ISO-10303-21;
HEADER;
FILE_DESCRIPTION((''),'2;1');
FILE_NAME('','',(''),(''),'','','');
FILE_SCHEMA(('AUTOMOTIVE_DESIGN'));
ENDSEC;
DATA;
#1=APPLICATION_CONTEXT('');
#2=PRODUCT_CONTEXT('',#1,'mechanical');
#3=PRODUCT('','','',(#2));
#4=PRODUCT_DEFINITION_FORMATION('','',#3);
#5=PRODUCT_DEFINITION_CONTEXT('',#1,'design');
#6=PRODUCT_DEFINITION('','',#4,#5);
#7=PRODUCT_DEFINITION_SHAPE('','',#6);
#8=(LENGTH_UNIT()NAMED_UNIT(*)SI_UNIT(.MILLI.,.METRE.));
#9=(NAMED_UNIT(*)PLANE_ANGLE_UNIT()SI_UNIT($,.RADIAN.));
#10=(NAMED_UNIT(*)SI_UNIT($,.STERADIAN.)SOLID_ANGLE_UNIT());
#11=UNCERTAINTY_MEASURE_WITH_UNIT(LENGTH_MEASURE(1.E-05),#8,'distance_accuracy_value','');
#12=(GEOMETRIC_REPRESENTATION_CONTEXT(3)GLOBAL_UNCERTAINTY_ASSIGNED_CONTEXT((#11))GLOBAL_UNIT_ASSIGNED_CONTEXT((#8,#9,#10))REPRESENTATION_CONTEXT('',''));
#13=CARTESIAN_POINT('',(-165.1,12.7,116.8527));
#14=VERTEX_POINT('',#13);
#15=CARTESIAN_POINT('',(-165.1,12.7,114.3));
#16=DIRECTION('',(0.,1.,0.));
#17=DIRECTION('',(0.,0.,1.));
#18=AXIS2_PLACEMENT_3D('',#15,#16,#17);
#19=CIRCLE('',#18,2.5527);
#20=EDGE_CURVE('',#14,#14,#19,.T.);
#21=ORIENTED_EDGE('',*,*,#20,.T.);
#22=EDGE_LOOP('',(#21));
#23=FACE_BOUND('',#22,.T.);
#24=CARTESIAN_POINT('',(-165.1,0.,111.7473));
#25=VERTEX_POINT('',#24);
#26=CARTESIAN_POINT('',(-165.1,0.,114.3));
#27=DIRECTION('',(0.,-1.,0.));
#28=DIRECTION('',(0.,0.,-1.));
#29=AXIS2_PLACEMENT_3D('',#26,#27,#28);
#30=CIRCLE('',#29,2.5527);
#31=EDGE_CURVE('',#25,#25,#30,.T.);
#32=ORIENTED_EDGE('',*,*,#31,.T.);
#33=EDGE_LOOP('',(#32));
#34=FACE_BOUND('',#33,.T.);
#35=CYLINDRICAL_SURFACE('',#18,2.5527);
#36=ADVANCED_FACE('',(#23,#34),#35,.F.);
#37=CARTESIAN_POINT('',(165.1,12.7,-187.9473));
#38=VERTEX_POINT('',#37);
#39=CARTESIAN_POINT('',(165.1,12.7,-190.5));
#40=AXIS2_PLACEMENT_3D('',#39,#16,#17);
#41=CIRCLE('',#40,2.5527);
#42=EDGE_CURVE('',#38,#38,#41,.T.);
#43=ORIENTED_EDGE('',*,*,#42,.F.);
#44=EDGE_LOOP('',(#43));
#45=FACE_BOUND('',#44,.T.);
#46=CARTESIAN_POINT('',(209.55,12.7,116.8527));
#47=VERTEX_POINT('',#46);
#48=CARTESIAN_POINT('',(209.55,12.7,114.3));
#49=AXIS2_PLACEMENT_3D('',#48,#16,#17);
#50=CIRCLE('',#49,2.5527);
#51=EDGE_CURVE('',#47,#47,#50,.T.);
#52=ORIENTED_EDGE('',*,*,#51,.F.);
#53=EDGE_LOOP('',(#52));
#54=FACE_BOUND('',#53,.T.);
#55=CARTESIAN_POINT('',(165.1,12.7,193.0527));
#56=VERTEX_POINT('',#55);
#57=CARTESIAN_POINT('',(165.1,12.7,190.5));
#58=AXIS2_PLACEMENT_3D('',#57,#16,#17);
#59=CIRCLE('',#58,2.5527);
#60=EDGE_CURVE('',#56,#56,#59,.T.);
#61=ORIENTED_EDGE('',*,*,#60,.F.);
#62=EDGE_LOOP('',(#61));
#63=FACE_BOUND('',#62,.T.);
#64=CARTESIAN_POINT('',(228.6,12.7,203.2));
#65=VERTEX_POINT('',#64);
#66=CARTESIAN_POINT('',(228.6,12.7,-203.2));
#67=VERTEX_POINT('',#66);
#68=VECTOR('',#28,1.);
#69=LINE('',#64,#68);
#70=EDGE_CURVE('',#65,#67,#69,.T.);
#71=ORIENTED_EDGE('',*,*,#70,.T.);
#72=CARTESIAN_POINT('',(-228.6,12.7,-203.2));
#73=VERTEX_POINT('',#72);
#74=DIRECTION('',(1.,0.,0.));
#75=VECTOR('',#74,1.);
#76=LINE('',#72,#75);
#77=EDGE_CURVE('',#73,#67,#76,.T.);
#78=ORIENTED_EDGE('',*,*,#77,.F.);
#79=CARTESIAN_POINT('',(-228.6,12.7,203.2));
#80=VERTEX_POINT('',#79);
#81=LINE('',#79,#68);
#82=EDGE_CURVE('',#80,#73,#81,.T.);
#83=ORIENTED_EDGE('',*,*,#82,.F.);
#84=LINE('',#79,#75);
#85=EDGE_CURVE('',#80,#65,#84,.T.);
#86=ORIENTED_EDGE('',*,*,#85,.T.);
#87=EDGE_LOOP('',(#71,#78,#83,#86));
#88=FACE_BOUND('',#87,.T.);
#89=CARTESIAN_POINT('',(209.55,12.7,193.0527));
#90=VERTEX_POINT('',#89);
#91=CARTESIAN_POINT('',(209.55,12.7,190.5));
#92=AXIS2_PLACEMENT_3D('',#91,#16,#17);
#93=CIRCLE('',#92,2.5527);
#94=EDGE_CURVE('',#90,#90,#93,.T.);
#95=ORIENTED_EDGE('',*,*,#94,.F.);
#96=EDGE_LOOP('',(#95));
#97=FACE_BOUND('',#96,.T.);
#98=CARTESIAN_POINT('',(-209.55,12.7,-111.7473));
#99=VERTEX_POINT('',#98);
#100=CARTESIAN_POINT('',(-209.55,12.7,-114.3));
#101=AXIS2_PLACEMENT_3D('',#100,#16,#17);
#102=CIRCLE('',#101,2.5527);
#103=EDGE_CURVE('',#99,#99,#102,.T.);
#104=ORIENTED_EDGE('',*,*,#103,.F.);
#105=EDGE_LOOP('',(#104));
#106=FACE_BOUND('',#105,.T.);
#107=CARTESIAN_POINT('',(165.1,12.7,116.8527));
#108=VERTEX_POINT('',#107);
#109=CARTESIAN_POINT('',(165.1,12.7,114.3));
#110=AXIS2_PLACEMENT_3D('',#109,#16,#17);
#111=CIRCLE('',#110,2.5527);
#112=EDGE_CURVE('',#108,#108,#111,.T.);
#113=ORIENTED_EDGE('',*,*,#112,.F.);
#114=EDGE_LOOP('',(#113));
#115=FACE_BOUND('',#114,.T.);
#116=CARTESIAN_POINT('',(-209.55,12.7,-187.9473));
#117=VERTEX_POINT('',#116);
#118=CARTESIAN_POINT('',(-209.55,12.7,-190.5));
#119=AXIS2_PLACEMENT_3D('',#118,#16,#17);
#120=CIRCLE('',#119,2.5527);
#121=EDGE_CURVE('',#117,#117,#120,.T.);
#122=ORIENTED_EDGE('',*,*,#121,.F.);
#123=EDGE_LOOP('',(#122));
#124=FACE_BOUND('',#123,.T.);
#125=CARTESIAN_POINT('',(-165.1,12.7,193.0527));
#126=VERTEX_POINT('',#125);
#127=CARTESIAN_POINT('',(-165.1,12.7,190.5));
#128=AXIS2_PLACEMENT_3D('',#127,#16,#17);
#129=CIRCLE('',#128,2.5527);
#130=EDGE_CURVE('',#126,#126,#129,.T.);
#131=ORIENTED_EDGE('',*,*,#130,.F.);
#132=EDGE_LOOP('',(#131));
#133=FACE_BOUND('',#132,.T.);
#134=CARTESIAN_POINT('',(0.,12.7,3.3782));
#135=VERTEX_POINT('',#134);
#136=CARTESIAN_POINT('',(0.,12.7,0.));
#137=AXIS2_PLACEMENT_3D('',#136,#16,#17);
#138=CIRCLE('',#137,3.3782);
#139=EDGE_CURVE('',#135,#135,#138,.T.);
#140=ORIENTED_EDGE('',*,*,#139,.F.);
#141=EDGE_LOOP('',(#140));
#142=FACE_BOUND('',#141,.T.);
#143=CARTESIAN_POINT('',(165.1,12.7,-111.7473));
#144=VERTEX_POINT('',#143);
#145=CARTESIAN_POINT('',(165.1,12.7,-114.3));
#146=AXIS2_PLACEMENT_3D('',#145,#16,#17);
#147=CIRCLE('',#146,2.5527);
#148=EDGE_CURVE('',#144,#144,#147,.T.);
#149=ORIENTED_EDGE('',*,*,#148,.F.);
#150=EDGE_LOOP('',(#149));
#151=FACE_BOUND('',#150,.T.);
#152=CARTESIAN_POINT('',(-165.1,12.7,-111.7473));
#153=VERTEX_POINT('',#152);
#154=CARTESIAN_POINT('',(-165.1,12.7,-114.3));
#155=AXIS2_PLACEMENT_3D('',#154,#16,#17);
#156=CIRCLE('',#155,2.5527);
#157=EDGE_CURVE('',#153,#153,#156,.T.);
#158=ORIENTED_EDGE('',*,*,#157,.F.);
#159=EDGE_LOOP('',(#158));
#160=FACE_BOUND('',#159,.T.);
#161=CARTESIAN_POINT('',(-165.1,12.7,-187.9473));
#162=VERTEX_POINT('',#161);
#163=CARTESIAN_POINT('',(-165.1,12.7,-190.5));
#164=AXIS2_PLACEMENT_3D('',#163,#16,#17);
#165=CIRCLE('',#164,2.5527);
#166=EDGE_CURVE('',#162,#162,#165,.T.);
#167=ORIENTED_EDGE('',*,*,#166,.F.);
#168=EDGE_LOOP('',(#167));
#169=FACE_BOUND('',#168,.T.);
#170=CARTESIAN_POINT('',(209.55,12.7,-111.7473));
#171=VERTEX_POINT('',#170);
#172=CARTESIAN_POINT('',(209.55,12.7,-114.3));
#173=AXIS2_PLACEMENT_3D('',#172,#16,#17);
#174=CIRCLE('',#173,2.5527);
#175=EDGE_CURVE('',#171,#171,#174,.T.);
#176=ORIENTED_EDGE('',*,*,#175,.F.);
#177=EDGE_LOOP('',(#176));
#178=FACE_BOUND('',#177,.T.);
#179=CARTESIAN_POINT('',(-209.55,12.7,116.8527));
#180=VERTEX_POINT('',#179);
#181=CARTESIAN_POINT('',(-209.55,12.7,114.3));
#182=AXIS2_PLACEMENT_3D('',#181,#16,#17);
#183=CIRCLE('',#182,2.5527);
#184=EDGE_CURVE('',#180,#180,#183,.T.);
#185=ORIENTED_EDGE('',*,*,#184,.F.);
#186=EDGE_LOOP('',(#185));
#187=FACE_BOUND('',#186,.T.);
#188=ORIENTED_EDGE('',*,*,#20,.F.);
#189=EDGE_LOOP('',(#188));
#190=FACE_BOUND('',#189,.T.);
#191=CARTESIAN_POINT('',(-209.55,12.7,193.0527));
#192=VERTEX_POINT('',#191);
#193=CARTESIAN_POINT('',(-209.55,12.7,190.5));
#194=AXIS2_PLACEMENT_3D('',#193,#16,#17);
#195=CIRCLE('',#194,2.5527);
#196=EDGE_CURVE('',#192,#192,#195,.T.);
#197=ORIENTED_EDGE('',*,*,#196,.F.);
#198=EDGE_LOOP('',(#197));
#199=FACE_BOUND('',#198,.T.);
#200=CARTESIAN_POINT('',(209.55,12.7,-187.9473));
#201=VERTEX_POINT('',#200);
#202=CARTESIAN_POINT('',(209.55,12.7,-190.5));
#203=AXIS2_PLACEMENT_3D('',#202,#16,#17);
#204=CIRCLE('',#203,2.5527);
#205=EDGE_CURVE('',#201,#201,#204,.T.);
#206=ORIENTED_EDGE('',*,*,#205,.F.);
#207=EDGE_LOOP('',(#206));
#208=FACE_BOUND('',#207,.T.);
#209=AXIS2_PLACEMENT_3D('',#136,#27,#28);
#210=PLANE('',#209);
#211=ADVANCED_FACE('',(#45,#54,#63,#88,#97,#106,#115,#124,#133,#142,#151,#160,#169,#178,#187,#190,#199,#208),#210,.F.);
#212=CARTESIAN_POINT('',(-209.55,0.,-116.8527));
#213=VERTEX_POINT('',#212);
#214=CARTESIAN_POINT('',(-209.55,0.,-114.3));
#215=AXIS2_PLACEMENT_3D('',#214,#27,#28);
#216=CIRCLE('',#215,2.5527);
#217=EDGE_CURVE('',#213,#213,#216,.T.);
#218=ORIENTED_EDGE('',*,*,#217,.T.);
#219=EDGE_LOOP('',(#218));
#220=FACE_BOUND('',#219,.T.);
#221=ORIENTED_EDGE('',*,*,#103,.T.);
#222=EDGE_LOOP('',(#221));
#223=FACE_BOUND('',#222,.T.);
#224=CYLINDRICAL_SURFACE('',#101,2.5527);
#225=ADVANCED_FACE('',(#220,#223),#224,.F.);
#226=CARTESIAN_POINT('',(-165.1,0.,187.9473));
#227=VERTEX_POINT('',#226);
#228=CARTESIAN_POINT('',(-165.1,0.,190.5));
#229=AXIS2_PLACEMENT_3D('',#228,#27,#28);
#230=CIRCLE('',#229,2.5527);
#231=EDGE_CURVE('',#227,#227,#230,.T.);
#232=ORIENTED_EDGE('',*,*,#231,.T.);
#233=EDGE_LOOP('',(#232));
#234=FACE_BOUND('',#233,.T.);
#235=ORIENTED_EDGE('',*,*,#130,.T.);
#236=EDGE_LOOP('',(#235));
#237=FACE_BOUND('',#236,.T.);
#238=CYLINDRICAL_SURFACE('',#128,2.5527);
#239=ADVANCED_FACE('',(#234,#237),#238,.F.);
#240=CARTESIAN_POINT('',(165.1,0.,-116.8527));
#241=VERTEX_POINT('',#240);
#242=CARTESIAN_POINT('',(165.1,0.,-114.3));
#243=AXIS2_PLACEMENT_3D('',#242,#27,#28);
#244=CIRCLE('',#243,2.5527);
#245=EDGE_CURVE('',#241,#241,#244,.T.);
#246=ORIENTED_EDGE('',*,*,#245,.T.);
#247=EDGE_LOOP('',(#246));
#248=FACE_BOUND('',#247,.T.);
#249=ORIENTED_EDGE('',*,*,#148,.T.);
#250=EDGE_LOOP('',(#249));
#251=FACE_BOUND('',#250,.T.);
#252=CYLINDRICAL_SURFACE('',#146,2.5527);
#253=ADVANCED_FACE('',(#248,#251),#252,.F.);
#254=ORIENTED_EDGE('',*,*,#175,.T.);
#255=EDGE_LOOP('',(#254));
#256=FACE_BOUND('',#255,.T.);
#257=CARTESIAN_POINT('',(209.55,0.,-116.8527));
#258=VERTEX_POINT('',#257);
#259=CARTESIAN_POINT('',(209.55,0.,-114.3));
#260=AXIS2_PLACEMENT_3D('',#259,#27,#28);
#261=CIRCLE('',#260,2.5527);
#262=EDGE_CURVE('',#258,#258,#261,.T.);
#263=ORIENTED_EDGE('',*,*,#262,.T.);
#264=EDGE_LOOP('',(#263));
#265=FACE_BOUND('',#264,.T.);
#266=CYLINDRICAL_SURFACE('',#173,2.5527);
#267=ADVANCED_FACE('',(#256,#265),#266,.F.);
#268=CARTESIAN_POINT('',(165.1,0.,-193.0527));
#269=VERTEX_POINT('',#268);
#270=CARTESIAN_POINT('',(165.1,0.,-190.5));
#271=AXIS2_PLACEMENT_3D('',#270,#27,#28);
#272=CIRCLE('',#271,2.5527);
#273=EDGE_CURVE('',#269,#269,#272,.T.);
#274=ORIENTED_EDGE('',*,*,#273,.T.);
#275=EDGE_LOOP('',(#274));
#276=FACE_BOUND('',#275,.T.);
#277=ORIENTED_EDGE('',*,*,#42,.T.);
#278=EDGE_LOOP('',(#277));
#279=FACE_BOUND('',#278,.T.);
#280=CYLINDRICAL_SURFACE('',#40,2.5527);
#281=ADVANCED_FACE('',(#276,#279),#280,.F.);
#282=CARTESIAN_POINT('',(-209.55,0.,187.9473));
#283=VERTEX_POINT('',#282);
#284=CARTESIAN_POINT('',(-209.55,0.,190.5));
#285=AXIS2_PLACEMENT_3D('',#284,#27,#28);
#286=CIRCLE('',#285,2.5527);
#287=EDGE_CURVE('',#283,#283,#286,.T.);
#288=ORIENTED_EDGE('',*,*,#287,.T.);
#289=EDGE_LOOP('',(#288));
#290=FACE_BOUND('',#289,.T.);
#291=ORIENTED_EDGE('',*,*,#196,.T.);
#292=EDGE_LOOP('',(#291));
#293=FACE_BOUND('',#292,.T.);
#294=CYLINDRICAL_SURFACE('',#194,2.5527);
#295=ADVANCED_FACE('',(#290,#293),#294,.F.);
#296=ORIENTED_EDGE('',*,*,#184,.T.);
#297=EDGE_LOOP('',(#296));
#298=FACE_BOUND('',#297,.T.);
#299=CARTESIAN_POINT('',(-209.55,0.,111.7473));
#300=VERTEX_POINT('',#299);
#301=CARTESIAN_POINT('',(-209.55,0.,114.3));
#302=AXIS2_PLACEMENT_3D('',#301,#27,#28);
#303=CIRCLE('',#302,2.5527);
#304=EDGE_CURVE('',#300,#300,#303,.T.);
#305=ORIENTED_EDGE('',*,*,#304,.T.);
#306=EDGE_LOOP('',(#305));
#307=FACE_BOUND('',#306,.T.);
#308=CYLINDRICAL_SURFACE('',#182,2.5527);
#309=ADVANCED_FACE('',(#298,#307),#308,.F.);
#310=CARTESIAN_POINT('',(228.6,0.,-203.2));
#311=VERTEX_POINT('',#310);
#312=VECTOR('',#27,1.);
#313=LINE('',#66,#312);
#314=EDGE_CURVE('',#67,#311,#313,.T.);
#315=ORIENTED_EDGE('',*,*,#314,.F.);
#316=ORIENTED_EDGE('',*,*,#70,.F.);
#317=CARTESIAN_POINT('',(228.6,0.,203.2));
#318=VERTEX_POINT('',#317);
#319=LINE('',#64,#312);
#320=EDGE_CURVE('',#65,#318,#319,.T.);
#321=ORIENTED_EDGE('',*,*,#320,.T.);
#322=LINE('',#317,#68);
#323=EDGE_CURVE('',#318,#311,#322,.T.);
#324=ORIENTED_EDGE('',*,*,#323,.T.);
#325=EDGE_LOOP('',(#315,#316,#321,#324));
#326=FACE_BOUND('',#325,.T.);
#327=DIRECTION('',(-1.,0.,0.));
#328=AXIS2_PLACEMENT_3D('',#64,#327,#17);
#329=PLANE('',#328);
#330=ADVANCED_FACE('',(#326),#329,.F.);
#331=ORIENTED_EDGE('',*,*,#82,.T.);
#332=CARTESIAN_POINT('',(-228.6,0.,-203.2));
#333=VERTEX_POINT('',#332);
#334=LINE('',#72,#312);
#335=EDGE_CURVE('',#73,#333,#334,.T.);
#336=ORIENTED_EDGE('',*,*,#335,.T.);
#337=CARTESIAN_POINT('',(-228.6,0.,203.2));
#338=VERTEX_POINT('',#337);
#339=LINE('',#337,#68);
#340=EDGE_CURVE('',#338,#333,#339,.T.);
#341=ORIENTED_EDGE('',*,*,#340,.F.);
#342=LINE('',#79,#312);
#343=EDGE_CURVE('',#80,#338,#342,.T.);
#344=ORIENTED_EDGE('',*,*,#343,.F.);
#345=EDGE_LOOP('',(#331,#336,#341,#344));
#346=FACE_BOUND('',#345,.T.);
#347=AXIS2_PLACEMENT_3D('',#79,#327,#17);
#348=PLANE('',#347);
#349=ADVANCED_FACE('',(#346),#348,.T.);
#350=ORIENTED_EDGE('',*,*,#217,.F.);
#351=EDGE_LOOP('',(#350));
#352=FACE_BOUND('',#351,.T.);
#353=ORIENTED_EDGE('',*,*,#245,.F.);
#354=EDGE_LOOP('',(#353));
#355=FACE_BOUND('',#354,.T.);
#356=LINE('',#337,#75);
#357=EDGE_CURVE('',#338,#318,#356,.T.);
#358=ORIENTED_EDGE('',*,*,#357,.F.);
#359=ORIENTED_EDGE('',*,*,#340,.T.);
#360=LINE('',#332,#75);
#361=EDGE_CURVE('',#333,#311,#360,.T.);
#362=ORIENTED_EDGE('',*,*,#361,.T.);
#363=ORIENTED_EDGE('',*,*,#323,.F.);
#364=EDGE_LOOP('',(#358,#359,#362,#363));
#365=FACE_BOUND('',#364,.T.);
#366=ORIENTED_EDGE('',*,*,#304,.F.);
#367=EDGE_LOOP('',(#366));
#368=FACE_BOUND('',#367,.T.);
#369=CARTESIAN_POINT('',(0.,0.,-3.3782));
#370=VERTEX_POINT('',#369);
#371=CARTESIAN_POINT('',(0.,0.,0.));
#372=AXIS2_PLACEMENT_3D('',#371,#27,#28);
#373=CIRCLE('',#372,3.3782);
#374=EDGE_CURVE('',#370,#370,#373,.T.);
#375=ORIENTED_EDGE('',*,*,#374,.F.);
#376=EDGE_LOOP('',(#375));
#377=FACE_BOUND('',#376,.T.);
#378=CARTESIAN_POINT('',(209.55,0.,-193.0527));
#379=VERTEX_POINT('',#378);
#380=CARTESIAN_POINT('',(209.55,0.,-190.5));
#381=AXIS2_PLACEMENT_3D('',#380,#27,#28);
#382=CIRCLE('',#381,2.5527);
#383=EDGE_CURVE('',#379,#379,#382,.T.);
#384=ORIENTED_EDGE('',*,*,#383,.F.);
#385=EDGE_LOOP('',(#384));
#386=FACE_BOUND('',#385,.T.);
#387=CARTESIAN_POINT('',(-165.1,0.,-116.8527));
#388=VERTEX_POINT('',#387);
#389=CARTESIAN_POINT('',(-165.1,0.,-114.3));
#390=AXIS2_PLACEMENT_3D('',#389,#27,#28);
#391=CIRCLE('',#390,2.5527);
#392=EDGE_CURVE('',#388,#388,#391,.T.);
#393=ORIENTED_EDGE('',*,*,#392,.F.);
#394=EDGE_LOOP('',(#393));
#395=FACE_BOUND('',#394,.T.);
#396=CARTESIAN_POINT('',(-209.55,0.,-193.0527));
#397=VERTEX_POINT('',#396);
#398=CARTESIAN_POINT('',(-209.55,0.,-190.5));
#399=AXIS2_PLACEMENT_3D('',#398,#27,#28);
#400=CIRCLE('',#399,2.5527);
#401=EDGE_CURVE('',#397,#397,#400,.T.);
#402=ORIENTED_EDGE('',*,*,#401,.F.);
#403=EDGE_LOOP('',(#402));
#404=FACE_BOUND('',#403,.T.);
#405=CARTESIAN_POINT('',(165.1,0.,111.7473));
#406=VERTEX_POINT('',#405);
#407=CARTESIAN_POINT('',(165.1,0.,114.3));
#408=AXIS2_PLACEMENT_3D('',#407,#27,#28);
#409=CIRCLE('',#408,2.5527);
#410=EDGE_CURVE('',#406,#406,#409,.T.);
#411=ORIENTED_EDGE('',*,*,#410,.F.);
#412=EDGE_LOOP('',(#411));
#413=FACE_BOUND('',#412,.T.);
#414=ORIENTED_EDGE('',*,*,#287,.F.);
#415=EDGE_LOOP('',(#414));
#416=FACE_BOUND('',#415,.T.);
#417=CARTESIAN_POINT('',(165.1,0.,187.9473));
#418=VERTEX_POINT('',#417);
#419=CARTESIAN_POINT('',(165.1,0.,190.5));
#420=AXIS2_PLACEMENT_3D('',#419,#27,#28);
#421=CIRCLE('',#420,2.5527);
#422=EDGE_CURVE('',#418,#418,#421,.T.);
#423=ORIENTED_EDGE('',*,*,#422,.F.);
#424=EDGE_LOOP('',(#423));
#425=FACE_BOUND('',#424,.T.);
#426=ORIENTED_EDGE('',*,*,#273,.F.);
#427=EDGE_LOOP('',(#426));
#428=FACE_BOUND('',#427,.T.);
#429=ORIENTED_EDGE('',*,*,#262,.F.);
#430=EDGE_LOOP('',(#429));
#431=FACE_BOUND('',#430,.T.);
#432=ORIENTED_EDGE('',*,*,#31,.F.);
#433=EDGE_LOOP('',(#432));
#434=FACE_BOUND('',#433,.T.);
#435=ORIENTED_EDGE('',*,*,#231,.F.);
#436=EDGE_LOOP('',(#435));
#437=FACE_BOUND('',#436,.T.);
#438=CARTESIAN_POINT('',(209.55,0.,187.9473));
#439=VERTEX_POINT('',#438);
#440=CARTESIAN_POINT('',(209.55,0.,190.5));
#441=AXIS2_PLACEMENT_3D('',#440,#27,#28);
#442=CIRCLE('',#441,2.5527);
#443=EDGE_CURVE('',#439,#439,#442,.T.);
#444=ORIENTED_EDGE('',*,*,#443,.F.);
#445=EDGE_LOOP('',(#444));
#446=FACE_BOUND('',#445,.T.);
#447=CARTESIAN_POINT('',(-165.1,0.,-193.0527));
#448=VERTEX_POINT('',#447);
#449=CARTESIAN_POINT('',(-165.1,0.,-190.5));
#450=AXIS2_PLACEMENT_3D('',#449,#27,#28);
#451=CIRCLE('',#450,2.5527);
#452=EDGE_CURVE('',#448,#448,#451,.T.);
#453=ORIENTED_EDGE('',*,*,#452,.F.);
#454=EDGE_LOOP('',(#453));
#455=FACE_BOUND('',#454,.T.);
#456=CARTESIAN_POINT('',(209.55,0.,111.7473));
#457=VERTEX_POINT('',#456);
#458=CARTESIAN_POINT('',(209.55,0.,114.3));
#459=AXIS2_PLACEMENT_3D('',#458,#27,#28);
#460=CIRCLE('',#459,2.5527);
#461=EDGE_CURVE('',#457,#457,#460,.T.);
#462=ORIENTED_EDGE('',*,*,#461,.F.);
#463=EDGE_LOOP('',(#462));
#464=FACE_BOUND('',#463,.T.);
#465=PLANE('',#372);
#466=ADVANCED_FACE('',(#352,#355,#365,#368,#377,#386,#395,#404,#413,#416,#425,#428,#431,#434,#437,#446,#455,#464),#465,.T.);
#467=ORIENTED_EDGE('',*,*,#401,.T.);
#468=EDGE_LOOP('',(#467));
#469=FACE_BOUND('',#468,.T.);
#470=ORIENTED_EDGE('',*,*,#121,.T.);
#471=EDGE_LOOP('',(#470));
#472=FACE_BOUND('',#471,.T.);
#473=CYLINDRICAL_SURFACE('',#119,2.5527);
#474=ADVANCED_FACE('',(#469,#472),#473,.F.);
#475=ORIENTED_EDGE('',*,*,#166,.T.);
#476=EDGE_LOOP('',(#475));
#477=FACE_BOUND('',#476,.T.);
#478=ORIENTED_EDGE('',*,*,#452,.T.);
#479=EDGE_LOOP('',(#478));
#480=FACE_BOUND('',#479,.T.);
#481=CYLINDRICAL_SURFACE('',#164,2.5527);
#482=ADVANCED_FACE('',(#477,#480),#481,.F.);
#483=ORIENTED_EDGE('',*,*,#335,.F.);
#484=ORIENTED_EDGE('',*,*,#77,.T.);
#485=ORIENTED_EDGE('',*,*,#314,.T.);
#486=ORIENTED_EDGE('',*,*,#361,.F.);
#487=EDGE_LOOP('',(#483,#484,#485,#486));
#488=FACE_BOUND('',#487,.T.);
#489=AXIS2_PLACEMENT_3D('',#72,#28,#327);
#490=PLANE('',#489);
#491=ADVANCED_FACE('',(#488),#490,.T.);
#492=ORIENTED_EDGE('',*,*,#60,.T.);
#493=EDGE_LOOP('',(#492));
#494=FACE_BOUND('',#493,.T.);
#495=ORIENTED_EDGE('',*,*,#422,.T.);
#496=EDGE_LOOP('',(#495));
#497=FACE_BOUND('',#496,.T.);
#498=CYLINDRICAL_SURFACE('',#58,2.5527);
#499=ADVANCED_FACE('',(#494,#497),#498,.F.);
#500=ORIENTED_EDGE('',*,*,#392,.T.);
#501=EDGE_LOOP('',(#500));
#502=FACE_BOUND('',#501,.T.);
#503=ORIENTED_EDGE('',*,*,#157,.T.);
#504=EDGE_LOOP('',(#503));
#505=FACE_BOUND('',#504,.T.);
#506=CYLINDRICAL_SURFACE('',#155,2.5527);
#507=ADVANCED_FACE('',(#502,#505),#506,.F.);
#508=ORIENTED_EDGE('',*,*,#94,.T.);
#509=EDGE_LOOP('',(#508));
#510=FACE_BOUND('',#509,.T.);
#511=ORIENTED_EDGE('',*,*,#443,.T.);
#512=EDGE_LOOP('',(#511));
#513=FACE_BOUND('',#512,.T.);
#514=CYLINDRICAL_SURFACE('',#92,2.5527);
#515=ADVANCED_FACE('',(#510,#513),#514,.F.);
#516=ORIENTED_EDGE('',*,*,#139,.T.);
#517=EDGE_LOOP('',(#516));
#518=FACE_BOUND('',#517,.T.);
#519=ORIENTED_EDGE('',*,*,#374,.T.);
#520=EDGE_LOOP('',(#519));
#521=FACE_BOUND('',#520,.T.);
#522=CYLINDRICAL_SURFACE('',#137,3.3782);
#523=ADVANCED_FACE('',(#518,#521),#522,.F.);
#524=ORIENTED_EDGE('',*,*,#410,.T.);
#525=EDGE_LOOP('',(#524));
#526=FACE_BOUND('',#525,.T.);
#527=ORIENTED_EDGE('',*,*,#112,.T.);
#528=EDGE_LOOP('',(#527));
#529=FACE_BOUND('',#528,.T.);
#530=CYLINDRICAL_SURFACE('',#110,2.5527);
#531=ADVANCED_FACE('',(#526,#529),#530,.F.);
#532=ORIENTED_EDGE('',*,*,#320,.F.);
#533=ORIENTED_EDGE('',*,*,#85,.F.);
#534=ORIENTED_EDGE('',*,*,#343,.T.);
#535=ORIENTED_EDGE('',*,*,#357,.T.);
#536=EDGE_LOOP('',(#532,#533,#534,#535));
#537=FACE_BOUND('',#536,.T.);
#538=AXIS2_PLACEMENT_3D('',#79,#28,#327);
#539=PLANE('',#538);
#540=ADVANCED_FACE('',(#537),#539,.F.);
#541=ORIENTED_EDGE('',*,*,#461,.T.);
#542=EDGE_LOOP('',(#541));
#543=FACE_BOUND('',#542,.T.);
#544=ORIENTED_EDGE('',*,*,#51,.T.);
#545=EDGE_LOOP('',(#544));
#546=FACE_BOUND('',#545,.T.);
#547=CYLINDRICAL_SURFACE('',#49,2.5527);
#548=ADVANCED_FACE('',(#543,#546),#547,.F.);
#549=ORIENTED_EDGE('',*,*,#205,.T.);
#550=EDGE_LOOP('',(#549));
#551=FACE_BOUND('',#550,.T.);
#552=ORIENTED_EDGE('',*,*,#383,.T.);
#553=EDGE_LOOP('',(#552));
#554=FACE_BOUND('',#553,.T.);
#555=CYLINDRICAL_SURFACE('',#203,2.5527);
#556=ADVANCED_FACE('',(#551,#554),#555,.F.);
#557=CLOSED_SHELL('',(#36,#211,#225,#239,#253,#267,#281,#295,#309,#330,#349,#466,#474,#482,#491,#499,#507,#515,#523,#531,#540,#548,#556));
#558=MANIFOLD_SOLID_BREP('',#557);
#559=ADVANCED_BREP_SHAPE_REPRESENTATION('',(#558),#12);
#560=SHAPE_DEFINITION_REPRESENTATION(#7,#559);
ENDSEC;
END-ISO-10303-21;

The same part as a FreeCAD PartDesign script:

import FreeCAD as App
import Part
import Sketcher
from FreeCAD import Vector
Q = App.Units.Quantity

doc = App.newDocument("Part")
body = doc.addObject("PartDesign::Body", "Body")

# Sketch on XZ plane
sketch1 = doc.addObject("Sketcher::SketchObject", "Sketch")
body.addObject(sketch1)
sketch1.AttachmentSupport = (doc.XZ_Plane, [""])
sketch1.MapMode = "FlatFace"
sketch1.addGeometry(Part.LineSegment(Vector(-229, -203, 0), Vector(-229, 203, 0)), False)
sketch1.addGeometry(Part.LineSegment(Vector(-229, 203, 0), Vector(229, 203, 0)), False)
sketch1.addGeometry(Part.LineSegment(Vector(229, 203, 0), Vector(229, -203, 0)), False)
sketch1.addGeometry(Part.LineSegment(Vector(229, -203, 0), Vector(-229, -203, 0)), False)
sketch1.addConstraint(Sketcher.Constraint("Coincident", 0, 2, 1, 1))
sketch1.addConstraint(Sketcher.Constraint("Coincident", 1, 2, 2, 1))
sketch1.addConstraint(Sketcher.Constraint("Coincident", 2, 2, 3, 1))
sketch1.addConstraint(Sketcher.Constraint("Coincident", 3, 2, 0, 1))
sketch1.addConstraint(Sketcher.Constraint("Vertical", 0))
sketch1.addConstraint(Sketcher.Constraint("Horizontal", 1))
sketch1.addConstraint(Sketcher.Constraint("Vertical", 2))
sketch1.addConstraint(Sketcher.Constraint("Horizontal", 3))
sketch1.addConstraint(Sketcher.Constraint("Symmetric", 0, 2, 2, 2, -1, 1))
sketch1.addConstraint(Sketcher.Constraint("DistanceX", 1, 1, 1, 2, Q("18 in")))
sketch1.addConstraint(Sketcher.Constraint("DistanceY", 0, 1, 0, 2, Q("16 in")))
pad1 = doc.addObject("PartDesign::Pad", "Pad")
body.addObject(pad1)
pad1.Profile = sketch1
pad1.Length = Q("0.5 in")
pad1.Reversed = True

# Sketch on YZ plane
sketch2 = doc.addObject("Sketcher::SketchObject", "Sketch001")
body.addObject(sketch2)
sketch2.AttachmentSupport = (doc.YZ_Plane, [""])
sketch2.MapMode = "FlatFace"
sketch2.AttachmentOffset = App.Placement(Vector(0, 0, -8.25 * 25.4), App.Rotation())
sketch2.addGeometry(Part.LineSegment(Vector(-5.3, 190.5, 0), Vector(12.7, 190.5, 0)), False)
sketch2.addGeometry(Part.LineSegment(Vector(12.7, 190.5, 0), Vector(12.7, 193.1, 0)), False)
sketch2.addGeometry(Part.LineSegment(Vector(12.7, 193.1, 0), Vector(-3.8, 193.1, 0)), False)
sketch2.addGeometry(Part.LineSegment(Vector(-3.8, 193.1, 0), Vector(-5.3, 190.5, 0)), False)
sketch2.addGeometry(Part.LineSegment(Vector(12.7, 190.5, 0), Vector(-5.3, 190.5, 0)), True)  # axis
sketch2.addConstraint(Sketcher.Constraint("Coincident", 0, 2, 1, 1))
sketch2.addConstraint(Sketcher.Constraint("Coincident", 1, 2, 2, 1))
sketch2.addConstraint(Sketcher.Constraint("Coincident", 2, 2, 3, 1))
sketch2.addConstraint(Sketcher.Constraint("Coincident", 3, 2, 0, 1))
sketch2.addConstraint(Sketcher.Constraint("Horizontal", 0))
sketch2.addConstraint(Sketcher.Constraint("Vertical", 1))
sketch2.addConstraint(Sketcher.Constraint("Horizontal", 2))
sketch2.addConstraint(Sketcher.Constraint("Horizontal", 4))
sketch2.addConstraint(Sketcher.Constraint("Coincident", 4, 1, 0, 2))
sketch2.addConstraint(Sketcher.Constraint("Equal", 0, 4))
sketch2.addConstraint(Sketcher.Constraint("Angle", 3, Q("-121 deg")))
sketch2.addConstraint(Sketcher.Constraint("DistanceX", 2, 2, 2, 1, Q("0.65 in")))
sketch2.addConstraint(Sketcher.Constraint("DistanceX", -1, 1, 0, 2, Q("0.5 in")))
sketch2.addConstraint(Sketcher.Constraint("DistanceY", -1, 1, 0, 2, Q("7.5 in")))
sketch2.addConstraint(Sketcher.Constraint("DistanceY", 1, 1, 1, 2, Q("0.1005 in")))
groove = doc.addObject("PartDesign::Groove", "Groove")
body.addObject(groove)
groove.Profile = sketch2
groove.ReferenceAxis = (sketch2, ["Axis0"])
groove.Angle = 360
doc.recompute()

linearpattern = doc.addObject("PartDesign::LinearPattern", "LinearPattern")
body.addObject(linearpattern)
linearpattern.Originals = [groove]
linearpattern.Direction = (doc.Z_Axis, [""])
linearpattern.Mode = "offset"
linearpattern.Offset = Q("3 in")
linearpattern.Occurrences = 2
linearpattern.Reversed = True
body.Tip = linearpattern
doc.recompute()

datumline = doc.addObject("PartDesign::Line", "DatumLine")
body.addObject(datumline)
datumline.Placement = App.Placement(Vector(0, 0, 0), App.Rotation(Vector(0, 0, 1), Vector(0.503871026, 0, -0.863778901)))
linearpattern2 = doc.addObject("PartDesign::LinearPattern", "LinearPattern001")
body.addObject(linearpattern2)
linearpattern2.Originals = [groove]
linearpattern2.Direction = (datumline, [""])
linearpattern2.Mode = "offset"
linearpattern2.Offset = 88.217019
linearpattern2.Occurrences = 2
body.Tip = linearpattern2
doc.recompute()

linearpattern3 = doc.addObject("PartDesign::LinearPattern", "LinearPattern002")
body.addObject(linearpattern3)
linearpattern3.Originals = [groove]
linearpattern3.Direction = (doc.X_Axis, [""])
linearpattern3.Mode = "offset"
linearpattern3.Offset = Q("1.75 in")
linearpattern3.Occurrences = 2
body.Tip = linearpattern3
doc.recompute()

mirrored = doc.addObject("PartDesign::Mirrored", "Mirrored")
body.addObject(mirrored)
mirrored.Originals = [groove]
mirrored.MirrorPlane = (doc.YZ_Plane, [""])
body.Tip = mirrored

# Sketch on YZ plane
sketch3 = doc.addObject("Sketcher::SketchObject", "Sketch002")
body.addObject(sketch3)
sketch3.AttachmentSupport = (doc.YZ_Plane, [""])
sketch3.MapMode = "FlatFace"
sketch3.AttachmentOffset = App.Placement(Vector(0, 0, 8.25 * 25.4), App.Rotation())
sketch3.addGeometry(Part.LineSegment(Vector(12.7, 114.3, 0), Vector(-5.3, 114.3, 0)), False)
sketch3.addGeometry(Part.LineSegment(Vector(-5.3, 114.3, 0), Vector(-3.8, 116.9, 0)), False)
sketch3.addGeometry(Part.LineSegment(Vector(-3.8, 116.9, 0), Vector(12.7, 116.9, 0)), False)
sketch3.addGeometry(Part.LineSegment(Vector(12.7, 116.9, 0), Vector(12.7, 114.3, 0)), False)
sketch3.addGeometry(Part.LineSegment(Vector(-5.3, 114.3, 0), Vector(12.7, 114.3, 0)), True)  # axis
sketch3.addConstraint(Sketcher.Constraint("Coincident", 0, 2, 1, 1))
sketch3.addConstraint(Sketcher.Constraint("Coincident", 1, 2, 2, 1))
sketch3.addConstraint(Sketcher.Constraint("Coincident", 2, 2, 3, 1))
sketch3.addConstraint(Sketcher.Constraint("Coincident", 3, 2, 0, 1))
sketch3.addConstraint(Sketcher.Constraint("Horizontal", 0))
sketch3.addConstraint(Sketcher.Constraint("Horizontal", 2))
sketch3.addConstraint(Sketcher.Constraint("Vertical", 3))
sketch3.addConstraint(Sketcher.Constraint("Horizontal", 4))
sketch3.addConstraint(Sketcher.Constraint("Coincident", 4, 1, 0, 2))
sketch3.addConstraint(Sketcher.Constraint("Vertical", 2, 2, 4, 2))
sketch3.addConstraint(Sketcher.Constraint("Angle", 1, Q("59 deg")))
sketch3.addConstraint(Sketcher.Constraint("DistanceX", 2, 1, 2, 2, Q("0.65 in")))
sketch3.addConstraint(Sketcher.Constraint("DistanceY", -1, 1, 0, 2, Q("4.5 in")))
sketch3.addConstraint(Sketcher.Constraint("DistanceX", -1, 1, 2, 2, Q("0.5 in")))
sketch3.addConstraint(Sketcher.Constraint("DistanceY", 3, 2, 3, 1, Q("0.1005 in")))
groove2 = doc.addObject("PartDesign::Groove", "Groove001")
body.addObject(groove2)
groove2.Profile = sketch3
groove2.ReferenceAxis = (sketch3, ["Axis0"])
groove2.Angle = 360

# Sketch on YZ plane
sketch4 = doc.addObject("Sketcher::SketchObject", "Sketch003")
body.addObject(sketch4)
sketch4.AttachmentSupport = (doc.YZ_Plane, [""])
sketch4.MapMode = "FlatFace"
sketch4.AttachmentOffset = App.Placement(Vector(0, 0, 6.5 * 25.4), App.Rotation())
sketch4.addGeometry(Part.LineSegment(Vector(12.7, 114.3, 0), Vector(-5.3, 114.3, 0)), False)
sketch4.addGeometry(Part.LineSegment(Vector(-5.3, 114.3, 0), Vector(-3.8, 116.9, 0)), False)
sketch4.addGeometry(Part.LineSegment(Vector(-3.8, 116.9, 0), Vector(12.7, 116.9, 0)), False)
sketch4.addGeometry(Part.LineSegment(Vector(12.7, 116.9, 0), Vector(12.7, 114.3, 0)), False)
sketch4.addGeometry(Part.LineSegment(Vector(-5.3, 114.3, 0), Vector(12.7, 114.3, 0)), True)  # axis
sketch4.addConstraint(Sketcher.Constraint("Coincident", 0, 2, 1, 1))
sketch4.addConstraint(Sketcher.Constraint("Coincident", 1, 2, 2, 1))
sketch4.addConstraint(Sketcher.Constraint("Coincident", 2, 2, 3, 1))
sketch4.addConstraint(Sketcher.Constraint("Coincident", 3, 2, 0, 1))
sketch4.addConstraint(Sketcher.Constraint("Horizontal", 0))
sketch4.addConstraint(Sketcher.Constraint("Horizontal", 2))
sketch4.addConstraint(Sketcher.Constraint("Vertical", 3))
sketch4.addConstraint(Sketcher.Constraint("Horizontal", 4))
sketch4.addConstraint(Sketcher.Constraint("Coincident", 4, 1, 0, 2))
sketch4.addConstraint(Sketcher.Constraint("Vertical", 2, 2, 4, 2))
sketch4.addConstraint(Sketcher.Constraint("Angle", 1, Q("59 deg")))
sketch4.addConstraint(Sketcher.Constraint("DistanceX", 2, 1, 2, 2, Q("0.65 in")))
sketch4.addConstraint(Sketcher.Constraint("DistanceY", -1, 1, 0, 2, Q("4.5 in")))
sketch4.addConstraint(Sketcher.Constraint("DistanceX", -1, 1, 2, 2, Q("0.5 in")))
sketch4.addConstraint(Sketcher.Constraint("DistanceY", 3, 2, 3, 1, Q("0.1005 in")))
groove3 = doc.addObject("PartDesign::Groove", "Groove002")
body.addObject(groove3)
groove3.Profile = sketch4
groove3.ReferenceAxis = (sketch4, ["Axis0"])
groove3.Angle = 360

# Sketch on YZ plane
sketch5 = doc.addObject("Sketcher::SketchObject", "Sketch004")
body.addObject(sketch5)
sketch5.AttachmentSupport = (doc.YZ_Plane, [""])
sketch5.MapMode = "FlatFace"
sketch5.AttachmentOffset = App.Placement(Vector(0, 0, 6.5 * 25.4), App.Rotation())
sketch5.addGeometry(Part.LineSegment(Vector(12.7, 190.5, 0), Vector(-5.3, 190.5, 0)), False)
sketch5.addGeometry(Part.LineSegment(Vector(-5.3, 190.5, 0), Vector(-3.8, 193.1, 0)), False)
sketch5.addGeometry(Part.LineSegment(Vector(-3.8, 193.1, 0), Vector(12.7, 193.1, 0)), False)
sketch5.addGeometry(Part.LineSegment(Vector(12.7, 193.1, 0), Vector(12.7, 190.5, 0)), False)
sketch5.addGeometry(Part.LineSegment(Vector(-5.3, 190.5, 0), Vector(12.7, 190.5, 0)), True)  # axis
sketch5.addConstraint(Sketcher.Constraint("Coincident", 0, 2, 1, 1))
sketch5.addConstraint(Sketcher.Constraint("Coincident", 1, 2, 2, 1))
sketch5.addConstraint(Sketcher.Constraint("Coincident", 2, 2, 3, 1))
sketch5.addConstraint(Sketcher.Constraint("Coincident", 3, 2, 0, 1))
sketch5.addConstraint(Sketcher.Constraint("Horizontal", 0))
sketch5.addConstraint(Sketcher.Constraint("Horizontal", 2))
sketch5.addConstraint(Sketcher.Constraint("Vertical", 3))
sketch5.addConstraint(Sketcher.Constraint("Horizontal", 4))
sketch5.addConstraint(Sketcher.Constraint("Coincident", 4, 1, 0, 2))
sketch5.addConstraint(Sketcher.Constraint("Vertical", 2, 2, 4, 2))
sketch5.addConstraint(Sketcher.Constraint("Angle", 1, Q("59 deg")))
sketch5.addConstraint(Sketcher.Constraint("DistanceX", 2, 1, 2, 2, Q("0.65 in")))
sketch5.addConstraint(Sketcher.Constraint("DistanceY", -1, 1, 0, 2, Q("7.5 in")))
sketch5.addConstraint(Sketcher.Constraint("DistanceX", -1, 1, 2, 2, Q("0.5 in")))
sketch5.addConstraint(Sketcher.Constraint("DistanceY", 3, 2, 3, 1, Q("0.1005 in")))
groove4 = doc.addObject("PartDesign::Groove", "Groove003")
body.addObject(groove4)
groove4.Profile = sketch5
groove4.ReferenceAxis = (sketch5, ["Axis0"])
groove4.Angle = 360
doc.recompute()

mirrored2 = doc.addObject("PartDesign::Mirrored", "Mirrored001")
body.addObject(mirrored2)
mirrored2.Originals = [groove]
mirrored2.MirrorPlane = (doc.XY_Plane, [""])
body.Tip = mirrored2

# Sketch on YZ plane
sketch6 = doc.addObject("Sketcher::SketchObject", "Sketch005")
body.addObject(sketch6)
sketch6.AttachmentSupport = (doc.YZ_Plane, [""])
sketch6.MapMode = "FlatFace"
sketch6.AttachmentOffset = App.Placement(Vector(0, 0, -8.25 * 25.4), App.Rotation())
sketch6.addGeometry(Part.LineSegment(Vector(12.7, -114.3, 0), Vector(-5.3, -114.3, 0)), False)
sketch6.addGeometry(Part.LineSegment(Vector(-5.3, -114.3, 0), Vector(-3.8, -116.9, 0)), False)
sketch6.addGeometry(Part.LineSegment(Vector(-3.8, -116.9, 0), Vector(12.7, -116.9, 0)), False)
sketch6.addGeometry(Part.LineSegment(Vector(12.7, -116.9, 0), Vector(12.7, -114.3, 0)), False)
sketch6.addGeometry(Part.LineSegment(Vector(-5.3, -114.3, 0), Vector(12.7, -114.3, 0)), True)  # axis
sketch6.addConstraint(Sketcher.Constraint("Coincident", 0, 2, 1, 1))
sketch6.addConstraint(Sketcher.Constraint("Coincident", 1, 2, 2, 1))
sketch6.addConstraint(Sketcher.Constraint("Coincident", 2, 2, 3, 1))
sketch6.addConstraint(Sketcher.Constraint("Coincident", 3, 2, 0, 1))
sketch6.addConstraint(Sketcher.Constraint("Horizontal", 0))
sketch6.addConstraint(Sketcher.Constraint("Horizontal", 2))
sketch6.addConstraint(Sketcher.Constraint("Vertical", 3))
sketch6.addConstraint(Sketcher.Constraint("Horizontal", 4))
sketch6.addConstraint(Sketcher.Constraint("Coincident", 4, 1, 0, 2))
sketch6.addConstraint(Sketcher.Constraint("Vertical", 2, 2, 4, 2))
sketch6.addConstraint(Sketcher.Constraint("Angle", 1, Q("-59 deg")))
sketch6.addConstraint(Sketcher.Constraint("DistanceX", 2, 1, 2, 2, Q("0.65 in")))
sketch6.addConstraint(Sketcher.Constraint("DistanceY", 0, 2, -1, 1, Q("4.5 in")))
sketch6.addConstraint(Sketcher.Constraint("DistanceX", -1, 1, 2, 2, Q("0.5 in")))
sketch6.addConstraint(Sketcher.Constraint("DistanceY", 3, 1, 3, 2, Q("0.1005 in")))
groove5 = doc.addObject("PartDesign::Groove", "Groove004")
body.addObject(groove5)
groove5.Profile = sketch6
groove5.ReferenceAxis = (sketch6, ["Axis0"])
groove5.Angle = 360

# Sketch on YZ plane
sketch7 = doc.addObject("Sketcher::SketchObject", "Sketch006")
body.addObject(sketch7)
sketch7.AttachmentSupport = (doc.YZ_Plane, [""])
sketch7.MapMode = "FlatFace"
sketch7.AttachmentOffset = App.Placement(Vector(0, 0, -6.5 * 25.4), App.Rotation())
sketch7.addGeometry(Part.LineSegment(Vector(12.7, -114.3, 0), Vector(-5.3, -114.3, 0)), False)
sketch7.addGeometry(Part.LineSegment(Vector(-5.3, -114.3, 0), Vector(-3.8, -116.9, 0)), False)
sketch7.addGeometry(Part.LineSegment(Vector(-3.8, -116.9, 0), Vector(12.7, -116.9, 0)), False)
sketch7.addGeometry(Part.LineSegment(Vector(12.7, -116.9, 0), Vector(12.7, -114.3, 0)), False)
sketch7.addGeometry(Part.LineSegment(Vector(-5.3, -114.3, 0), Vector(12.7, -114.3, 0)), True)  # axis
sketch7.addConstraint(Sketcher.Constraint("Coincident", 0, 2, 1, 1))
sketch7.addConstraint(Sketcher.Constraint("Coincident", 1, 2, 2, 1))
sketch7.addConstraint(Sketcher.Constraint("Coincident", 2, 2, 3, 1))
sketch7.addConstraint(Sketcher.Constraint("Coincident", 3, 2, 0, 1))
sketch7.addConstraint(Sketcher.Constraint("Horizontal", 0))
sketch7.addConstraint(Sketcher.Constraint("Horizontal", 2))
sketch7.addConstraint(Sketcher.Constraint("Vertical", 3))
sketch7.addConstraint(Sketcher.Constraint("Horizontal", 4))
sketch7.addConstraint(Sketcher.Constraint("Coincident", 4, 1, 0, 2))
sketch7.addConstraint(Sketcher.Constraint("Vertical", 2, 2, 4, 2))
sketch7.addConstraint(Sketcher.Constraint("Angle", 1, Q("-59 deg")))
sketch7.addConstraint(Sketcher.Constraint("DistanceX", 2, 1, 2, 2, Q("0.65 in")))
sketch7.addConstraint(Sketcher.Constraint("DistanceY", 0, 2, -1, 1, Q("4.5 in")))
sketch7.addConstraint(Sketcher.Constraint("DistanceX", -1, 1, 2, 2, Q("0.5 in")))
sketch7.addConstraint(Sketcher.Constraint("DistanceY", 3, 1, 3, 2, Q("0.1005 in")))
groove6 = doc.addObject("PartDesign::Groove", "Groove005")
body.addObject(groove6)
groove6.Profile = sketch7
groove6.ReferenceAxis = (sketch7, ["Axis0"])
groove6.Angle = 360

# Sketch on YZ plane
sketch8 = doc.addObject("Sketcher::SketchObject", "Sketch007")
body.addObject(sketch8)
sketch8.AttachmentSupport = (doc.YZ_Plane, [""])
sketch8.MapMode = "FlatFace"
sketch8.AttachmentOffset = App.Placement(Vector(0, 0, -6.5 * 25.4), App.Rotation())
sketch8.addGeometry(Part.LineSegment(Vector(12.7, -190.5, 0), Vector(-5.3, -190.5, 0)), False)
sketch8.addGeometry(Part.LineSegment(Vector(-5.3, -190.5, 0), Vector(-3.8, -193.1, 0)), False)
sketch8.addGeometry(Part.LineSegment(Vector(-3.8, -193.1, 0), Vector(12.7, -193.1, 0)), False)
sketch8.addGeometry(Part.LineSegment(Vector(12.7, -193.1, 0), Vector(12.7, -190.5, 0)), False)
sketch8.addGeometry(Part.LineSegment(Vector(-5.3, -190.5, 0), Vector(12.7, -190.5, 0)), True)  # axis
sketch8.addConstraint(Sketcher.Constraint("Coincident", 0, 2, 1, 1))
sketch8.addConstraint(Sketcher.Constraint("Coincident", 1, 2, 2, 1))
sketch8.addConstraint(Sketcher.Constraint("Coincident", 2, 2, 3, 1))
sketch8.addConstraint(Sketcher.Constraint("Coincident", 3, 2, 0, 1))
sketch8.addConstraint(Sketcher.Constraint("Horizontal", 0))
sketch8.addConstraint(Sketcher.Constraint("Horizontal", 2))
sketch8.addConstraint(Sketcher.Constraint("Vertical", 3))
sketch8.addConstraint(Sketcher.Constraint("Horizontal", 4))
sketch8.addConstraint(Sketcher.Constraint("Coincident", 4, 1, 0, 2))
sketch8.addConstraint(Sketcher.Constraint("Vertical", 2, 2, 4, 2))
sketch8.addConstraint(Sketcher.Constraint("Angle", 1, Q("-59 deg")))
sketch8.addConstraint(Sketcher.Constraint("DistanceX", 2, 1, 2, 2, Q("0.65 in")))
sketch8.addConstraint(Sketcher.Constraint("DistanceY", 0, 2, -1, 1, Q("7.5 in")))
sketch8.addConstraint(Sketcher.Constraint("DistanceX", -1, 1, 2, 2, Q("0.5 in")))
sketch8.addConstraint(Sketcher.Constraint("DistanceY", 3, 1, 3, 2, Q("0.1005 in")))
groove7 = doc.addObject("PartDesign::Groove", "Groove006")
body.addObject(groove7)
groove7.Profile = sketch8
groove7.ReferenceAxis = (sketch8, ["Axis0"])
groove7.Angle = 360

# Sketch on YZ plane
sketch9 = doc.addObject("Sketcher::SketchObject", "Sketch008")
body.addObject(sketch9)
sketch9.AttachmentSupport = (doc.YZ_Plane, [""])
sketch9.MapMode = "FlatFace"
sketch9.AttachmentOffset = App.Placement(Vector(0, 0, 8.25 * 25.4), App.Rotation())
sketch9.addGeometry(Part.LineSegment(Vector(-5.3, -190.5, 0), Vector(12.7, -190.5, 0)), False)
sketch9.addGeometry(Part.LineSegment(Vector(12.7, -190.5, 0), Vector(12.7, -193.1, 0)), False)
sketch9.addGeometry(Part.LineSegment(Vector(12.7, -193.1, 0), Vector(-3.8, -193.1, 0)), False)
sketch9.addGeometry(Part.LineSegment(Vector(-3.8, -193.1, 0), Vector(-5.3, -190.5, 0)), False)
sketch9.addGeometry(Part.LineSegment(Vector(12.7, -190.5, 0), Vector(-5.3, -190.5, 0)), True)  # axis
sketch9.addConstraint(Sketcher.Constraint("Coincident", 0, 2, 1, 1))
sketch9.addConstraint(Sketcher.Constraint("Coincident", 1, 2, 2, 1))
sketch9.addConstraint(Sketcher.Constraint("Coincident", 2, 2, 3, 1))
sketch9.addConstraint(Sketcher.Constraint("Coincident", 3, 2, 0, 1))
sketch9.addConstraint(Sketcher.Constraint("Horizontal", 0))
sketch9.addConstraint(Sketcher.Constraint("Vertical", 1))
sketch9.addConstraint(Sketcher.Constraint("Horizontal", 2))
sketch9.addConstraint(Sketcher.Constraint("Horizontal", 4))
sketch9.addConstraint(Sketcher.Constraint("Coincident", 4, 1, 0, 2))
sketch9.addConstraint(Sketcher.Constraint("Equal", 0, 4))
sketch9.addConstraint(Sketcher.Constraint("Angle", 3, Q("121 deg")))
sketch9.addConstraint(Sketcher.Constraint("DistanceX", 2, 2, 2, 1, Q("0.65 in")))
sketch9.addConstraint(Sketcher.Constraint("DistanceX", -1, 1, 0, 2, Q("0.5 in")))
sketch9.addConstraint(Sketcher.Constraint("DistanceY", 0, 2, -1, 1, Q("7.5 in")))
sketch9.addConstraint(Sketcher.Constraint("DistanceY", 1, 2, 1, 1, Q("0.1005 in")))
groove8 = doc.addObject("PartDesign::Groove", "Groove007")
body.addObject(groove8)
groove8.Profile = sketch9
groove8.ReferenceAxis = (sketch9, ["Axis0"])
groove8.Angle = 360

# Sketch on YZ plane
sketch10 = doc.addObject("Sketcher::SketchObject", "Sketch009")
body.addObject(sketch10)
sketch10.AttachmentSupport = (doc.YZ_Plane, [""])
sketch10.MapMode = "FlatFace"
sketch10.AttachmentOffset = App.Placement(Vector(0, 0, 8.25 * 25.4), App.Rotation())
sketch10.addGeometry(Part.LineSegment(Vector(-5.3, -114.3, 0), Vector(12.7, -114.3, 0)), False)
sketch10.addGeometry(Part.LineSegment(Vector(12.7, -114.3, 0), Vector(12.7, -116.9, 0)), False)
sketch10.addGeometry(Part.LineSegment(Vector(12.7, -116.9, 0), Vector(-3.8, -116.9, 0)), False)
sketch10.addGeometry(Part.LineSegment(Vector(-3.8, -116.9, 0), Vector(-5.3, -114.3, 0)), False)
sketch10.addGeometry(Part.LineSegment(Vector(12.7, -114.3, 0), Vector(-5.3, -114.3, 0)), True)  # axis
sketch10.addConstraint(Sketcher.Constraint("Coincident", 0, 2, 1, 1))
sketch10.addConstraint(Sketcher.Constraint("Coincident", 1, 2, 2, 1))
sketch10.addConstraint(Sketcher.Constraint("Coincident", 2, 2, 3, 1))
sketch10.addConstraint(Sketcher.Constraint("Coincident", 3, 2, 0, 1))
sketch10.addConstraint(Sketcher.Constraint("Horizontal", 0))
sketch10.addConstraint(Sketcher.Constraint("Vertical", 1))
sketch10.addConstraint(Sketcher.Constraint("Horizontal", 2))
sketch10.addConstraint(Sketcher.Constraint("Horizontal", 4))
sketch10.addConstraint(Sketcher.Constraint("Coincident", 4, 1, 0, 2))
sketch10.addConstraint(Sketcher.Constraint("Equal", 0, 4))
sketch10.addConstraint(Sketcher.Constraint("Angle", 3, Q("121 deg")))
sketch10.addConstraint(Sketcher.Constraint("DistanceX", 2, 2, 2, 1, Q("0.65 in")))
sketch10.addConstraint(Sketcher.Constraint("DistanceX", -1, 1, 0, 2, Q("0.5 in")))
sketch10.addConstraint(Sketcher.Constraint("DistanceY", 0, 2, -1, 1, Q("4.5 in")))
sketch10.addConstraint(Sketcher.Constraint("DistanceY", 1, 2, 1, 1, Q("0.1005 in")))
groove9 = doc.addObject("PartDesign::Groove", "Groove008")
body.addObject(groove9)
groove9.Profile = sketch10
groove9.ReferenceAxis = (sketch10, ["Axis0"])
groove9.Angle = 360

# Sketch on YZ plane
sketch11 = doc.addObject("Sketcher::SketchObject", "Sketch010")
body.addObject(sketch11)
sketch11.AttachmentSupport = (doc.YZ_Plane, [""])
sketch11.MapMode = "FlatFace"
sketch11.AttachmentOffset = App.Placement(Vector(0, 0, 6.5 * 25.4), App.Rotation())
sketch11.addGeometry(Part.LineSegment(Vector(-5.3, -114.3, 0), Vector(12.7, -114.3, 0)), False)
sketch11.addGeometry(Part.LineSegment(Vector(12.7, -114.3, 0), Vector(12.7, -116.9, 0)), False)
sketch11.addGeometry(Part.LineSegment(Vector(12.7, -116.9, 0), Vector(-3.8, -116.9, 0)), False)
sketch11.addGeometry(Part.LineSegment(Vector(-3.8, -116.9, 0), Vector(-5.3, -114.3, 0)), False)
sketch11.addGeometry(Part.LineSegment(Vector(12.7, -114.3, 0), Vector(-5.3, -114.3, 0)), True)  # axis
sketch11.addConstraint(Sketcher.Constraint("Coincident", 0, 2, 1, 1))
sketch11.addConstraint(Sketcher.Constraint("Coincident", 1, 2, 2, 1))
sketch11.addConstraint(Sketcher.Constraint("Coincident", 2, 2, 3, 1))
sketch11.addConstraint(Sketcher.Constraint("Coincident", 3, 2, 0, 1))
sketch11.addConstraint(Sketcher.Constraint("Horizontal", 0))
sketch11.addConstraint(Sketcher.Constraint("Vertical", 1))
sketch11.addConstraint(Sketcher.Constraint("Horizontal", 2))
sketch11.addConstraint(Sketcher.Constraint("Horizontal", 4))
sketch11.addConstraint(Sketcher.Constraint("Coincident", 4, 1, 0, 2))
sketch11.addConstraint(Sketcher.Constraint("Equal", 0, 4))
sketch11.addConstraint(Sketcher.Constraint("Angle", 3, Q("121 deg")))
sketch11.addConstraint(Sketcher.Constraint("DistanceX", 2, 2, 2, 1, Q("0.65 in")))
sketch11.addConstraint(Sketcher.Constraint("DistanceX", -1, 1, 0, 2, Q("0.5 in")))
sketch11.addConstraint(Sketcher.Constraint("DistanceY", 0, 2, -1, 1, Q("4.5 in")))
sketch11.addConstraint(Sketcher.Constraint("DistanceY", 1, 2, 1, 1, Q("0.1005 in")))
groove10 = doc.addObject("PartDesign::Groove", "Groove009")
body.addObject(groove10)
groove10.Profile = sketch11
groove10.ReferenceAxis = (sketch11, ["Axis0"])
groove10.Angle = 360

# Sketch on YZ plane
sketch12 = doc.addObject("Sketcher::SketchObject", "Sketch011")
body.addObject(sketch12)
sketch12.AttachmentSupport = (doc.YZ_Plane, [""])
sketch12.MapMode = "FlatFace"
sketch12.AttachmentOffset = App.Placement(Vector(0, 0, 6.5 * 25.4), App.Rotation())
sketch12.addGeometry(Part.LineSegment(Vector(-5.3, -190.5, 0), Vector(12.7, -190.5, 0)), False)
sketch12.addGeometry(Part.LineSegment(Vector(12.7, -190.5, 0), Vector(12.7, -193.1, 0)), False)
sketch12.addGeometry(Part.LineSegment(Vector(12.7, -193.1, 0), Vector(-3.8, -193.1, 0)), False)
sketch12.addGeometry(Part.LineSegment(Vector(-3.8, -193.1, 0), Vector(-5.3, -190.5, 0)), False)
sketch12.addGeometry(Part.LineSegment(Vector(12.7, -190.5, 0), Vector(-5.3, -190.5, 0)), True)  # axis
sketch12.addConstraint(Sketcher.Constraint("Coincident", 0, 2, 1, 1))
sketch12.addConstraint(Sketcher.Constraint("Coincident", 1, 2, 2, 1))
sketch12.addConstraint(Sketcher.Constraint("Coincident", 2, 2, 3, 1))
sketch12.addConstraint(Sketcher.Constraint("Coincident", 3, 2, 0, 1))
sketch12.addConstraint(Sketcher.Constraint("Horizontal", 0))
sketch12.addConstraint(Sketcher.Constraint("Vertical", 1))
sketch12.addConstraint(Sketcher.Constraint("Horizontal", 2))
sketch12.addConstraint(Sketcher.Constraint("Horizontal", 4))
sketch12.addConstraint(Sketcher.Constraint("Coincident", 4, 1, 0, 2))
sketch12.addConstraint(Sketcher.Constraint("Equal", 0, 4))
sketch12.addConstraint(Sketcher.Constraint("Angle", 3, Q("121 deg")))
sketch12.addConstraint(Sketcher.Constraint("DistanceX", 2, 2, 2, 1, Q("0.65 in")))
sketch12.addConstraint(Sketcher.Constraint("DistanceX", -1, 1, 0, 2, Q("0.5 in")))
sketch12.addConstraint(Sketcher.Constraint("DistanceY", 0, 2, -1, 1, Q("7.5 in")))
sketch12.addConstraint(Sketcher.Constraint("DistanceY", 1, 2, 1, 1, Q("0.1005 in")))
groove11 = doc.addObject("PartDesign::Groove", "Groove010")
body.addObject(groove11)
groove11.Profile = sketch12
groove11.ReferenceAxis = (sketch12, ["Axis0"])
groove11.Angle = 360

# Sketch on XZ plane
sketch13 = doc.addObject("Sketcher::SketchObject", "Sketch012")
body.addObject(sketch13)
sketch13.AttachmentSupport = (doc.XZ_Plane, [""])
sketch13.MapMode = "FlatFace"
sketch13.AttachmentOffset = App.Placement(Vector(0, 0, -0.5 * 25.4), App.Rotation())
sketch13.addGeometry(Part.Circle(Vector(0, 0, 0), Vector(0, 0, 1), 3.4), False)
sketch13.addConstraint(Sketcher.Constraint("Coincident", 0, 3, -1, 1))
sketch13.addConstraint(Sketcher.Constraint("Diameter", 0, Q("0.266 in")))
doc.recompute()
hole = doc.addObject("PartDesign::Hole", "Hole")
body.addObject(hole)
hole.Profile = sketch13
hole.ThreadType = "None"
hole.Diameter = Q("0.266 in")
hole.DepthType = "ThroughAll"
hole.Reversed = True

doc.recompute()
